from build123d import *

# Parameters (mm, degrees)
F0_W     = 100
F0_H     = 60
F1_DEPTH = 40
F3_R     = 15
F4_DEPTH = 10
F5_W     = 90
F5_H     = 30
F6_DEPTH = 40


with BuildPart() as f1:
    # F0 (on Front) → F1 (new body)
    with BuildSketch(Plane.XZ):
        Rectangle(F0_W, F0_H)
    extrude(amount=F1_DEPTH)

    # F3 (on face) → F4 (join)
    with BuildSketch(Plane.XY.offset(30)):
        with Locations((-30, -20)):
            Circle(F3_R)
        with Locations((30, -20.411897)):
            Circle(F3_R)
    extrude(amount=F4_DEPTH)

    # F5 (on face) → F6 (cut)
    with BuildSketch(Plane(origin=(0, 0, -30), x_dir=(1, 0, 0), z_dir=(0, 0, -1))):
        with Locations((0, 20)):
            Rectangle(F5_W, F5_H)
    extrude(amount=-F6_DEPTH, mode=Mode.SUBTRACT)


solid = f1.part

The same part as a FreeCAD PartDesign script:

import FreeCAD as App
import Part
import Sketcher
Q = App.Units.Quantity

doc = App.newDocument("Part")
body = doc.addObject("PartDesign::Body", "Body")

sketch1 = body.newObject("Sketcher::SketchObject", "Sketch")
sketch1.AttachmentSupport = (doc.getObject("XZ_Plane"), [""])
sketch1.MapMode = "FlatFace"
sketch1.addGeometry([
    Part.LineSegment(App.Vector(-50, 30, 0), App.Vector(-50, -30, 0)),
    Part.LineSegment(App.Vector(-50, -30, 0), App.Vector(50, -30, 0)),
    Part.LineSegment(App.Vector(50, -30, 0), App.Vector(50, 30, 0)),
    Part.LineSegment(App.Vector(50, 30, 0), App.Vector(-50, 30, 0)),
], False)
sketch1.addConstraint([
    Sketcher.Constraint("Coincident", 0, 2, 1, 1),
    Sketcher.Constraint("Coincident", 1, 2, 2, 1),
    Sketcher.Constraint("Coincident", 2, 2, 3, 1),
    Sketcher.Constraint("Coincident", 3, 2, 0, 1),
    Sketcher.Constraint("Vertical", 0),
    Sketcher.Constraint("Horizontal", 1),
    Sketcher.Constraint("Vertical", 2),
    Sketcher.Constraint("Horizontal", 3),
    Sketcher.Constraint("Symmetric", 0, 2, 2, 2, -1, 1),
    Sketcher.Constraint("DistanceX", 1, 1, 1, 2, Q("100 mm")),
    Sketcher.Constraint("DistanceY", 0, 2, 0, 1, Q("60 mm")),
])
pad1 = body.newObject("PartDesign::Pad", "Pad")
pad1.Profile = sketch1
pad1.Length = 40

sketch2 = body.newObject("Sketcher::SketchObject", "Sketch001")
sketch2.AttachmentSupport = (doc.getObject("XY_Plane"), [""])
sketch2.MapMode = "FlatFace"
sketch2.AttachmentOffset = App.Placement(App.Vector(0, 0, 30), App.Rotation())
sketch2.addGeometry([
    Part.Circle(App.Vector(-30, -20, 0), App.Vector(0, 0, 1), 15),
    Part.Circle(App.Vector(30, -20, 0), App.Vector(0, 0, 1), 15),
], False)
sketch2.addConstraint([
    Sketcher.Constraint("Equal", 0, 1),
    Sketcher.Constraint("Diameter", 0, Q("30 mm")),
    Sketcher.Constraint("DistanceX", 0, 3, -1, 1, Q("30 mm")),
    Sketcher.Constraint("DistanceY", 0, 3, -1, 1, Q("20 mm")),
    Sketcher.Constraint("DistanceX", -1, 1, 1, 3, Q("30 mm")),
    Sketcher.Constraint("DistanceY", 1, 3, -1, 1, Q("20.411897 mm")),
])
pad2 = body.newObject("PartDesign::Pad", "Pad001")
pad2.Profile = sketch2
pad2.Length = 10

sketch3 = body.newObject("Sketcher::SketchObject", "Sketch002")
sketch3.AttachmentSupport = (doc.getObject("XY_Plane"), [""])
sketch3.MapMode = "FlatFace"
sketch3.AttachmentOffset = App.Placement(App.Vector(0, 0, -30), App.Rotation())
sketch3.addGeometry([
    Part.LineSegment(App.Vector(-45, -35, 0), App.Vector(-45, -5, 0)),
    Part.LineSegment(App.Vector(-45, -5, 0), App.Vector(45, -5, 0)),
    Part.LineSegment(App.Vector(45, -5, 0), App.Vector(45, -35, 0)),
    Part.LineSegment(App.Vector(45, -35, 0), App.Vector(-45, -35, 0)),
], False)
sketch3.addConstraint([
    Sketcher.Constraint("Coincident", 0, 2, 1, 1),
    Sketcher.Constraint("Coincident", 1, 2, 2, 1),
    Sketcher.Constraint("Coincident", 2, 2, 3, 1),
    Sketcher.Constraint("Coincident", 3, 2, 0, 1),
    Sketcher.Constraint("Vertical", 0),
    Sketcher.Constraint("Horizontal", 1),
    Sketcher.Constraint("Vertical", 2),
    Sketcher.Constraint("Horizontal", 3),
    Sketcher.Constraint("DistanceX", 1, 1, 1, 2, Q("90 mm")),
    Sketcher.Constraint("DistanceY", 0, 1, 0, 2, Q("30 mm")),
    Sketcher.Constraint("DistanceX", 0, 2, -1, 1, Q("45 mm")),
    Sketcher.Constraint("DistanceY", 0, 2, -1, 1, Q("5 mm")),
])
pocket1 = body.newObject("PartDesign::Pocket", "Pocket")
pocket1.Profile = sketch3
pocket1.Length = 40
pocket1.Reversed = True

doc.recompute()
